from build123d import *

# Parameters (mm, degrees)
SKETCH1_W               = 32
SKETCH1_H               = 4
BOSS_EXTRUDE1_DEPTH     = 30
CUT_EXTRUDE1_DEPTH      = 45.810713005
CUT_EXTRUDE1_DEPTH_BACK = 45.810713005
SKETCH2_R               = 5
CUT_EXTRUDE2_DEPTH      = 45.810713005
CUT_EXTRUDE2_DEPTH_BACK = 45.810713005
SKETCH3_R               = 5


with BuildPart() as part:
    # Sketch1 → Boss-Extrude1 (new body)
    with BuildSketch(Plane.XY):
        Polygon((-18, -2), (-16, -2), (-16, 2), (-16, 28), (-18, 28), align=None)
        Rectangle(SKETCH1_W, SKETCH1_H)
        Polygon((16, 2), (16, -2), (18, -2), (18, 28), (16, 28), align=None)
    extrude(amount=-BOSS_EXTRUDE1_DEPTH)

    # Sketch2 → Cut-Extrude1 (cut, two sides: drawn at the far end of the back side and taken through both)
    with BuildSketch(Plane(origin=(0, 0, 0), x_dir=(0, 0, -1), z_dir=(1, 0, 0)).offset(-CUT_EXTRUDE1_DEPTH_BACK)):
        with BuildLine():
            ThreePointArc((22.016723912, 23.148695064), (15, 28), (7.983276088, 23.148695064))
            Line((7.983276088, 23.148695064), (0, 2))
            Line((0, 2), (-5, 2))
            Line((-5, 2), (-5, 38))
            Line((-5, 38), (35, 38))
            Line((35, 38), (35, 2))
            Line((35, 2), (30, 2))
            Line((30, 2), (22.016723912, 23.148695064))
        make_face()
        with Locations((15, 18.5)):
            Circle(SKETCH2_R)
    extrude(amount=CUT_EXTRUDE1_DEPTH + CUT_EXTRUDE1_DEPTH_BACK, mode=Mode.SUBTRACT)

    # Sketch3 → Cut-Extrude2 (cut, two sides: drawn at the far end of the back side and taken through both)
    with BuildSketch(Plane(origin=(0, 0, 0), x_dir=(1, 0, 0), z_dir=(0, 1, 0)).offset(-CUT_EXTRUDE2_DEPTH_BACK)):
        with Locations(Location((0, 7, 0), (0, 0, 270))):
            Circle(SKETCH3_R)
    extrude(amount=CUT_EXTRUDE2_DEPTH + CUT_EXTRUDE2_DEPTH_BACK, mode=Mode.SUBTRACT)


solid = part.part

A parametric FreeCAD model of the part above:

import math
import FreeCAD as App
import Part
import Sketcher

V = App.Vector
Q = App.Units.Quantity


def add_polygon(sketch, points):
    """Adds a closed chain of lines whose ends are joined by coincident constraints."""
    first, n = sketch.GeometryCount, len(points)
    for a, b in zip(points, points[1:] + points[:1]):
        sketch.addGeometry(Part.LineSegment(App.Vector(*a, 0), App.Vector(*b, 0)), False)
    for i in range(n):
        sketch.addConstraint(Sketcher.Constraint("Coincident", first + i, 2, first + (i + 1) % n, 1))

doc = App.newDocument("Part")
body = doc.addObject("PartDesign::Body", "Body")

sketch1 = doc.addObject("Sketcher::SketchObject", "Sketch")
body.addObject(sketch1)
sketch1.AttachmentSupport = (doc.XY_Plane, [""])
sketch1.MapMode = "FlatFace"
add_polygon(sketch1, [(-18, -2), (18, -2), (18, 28), (16, 28), (16, 2), (-16, 2), (-16, 28), (-18, 28)])
sketch1.addConstraint([
    Sketcher.Constraint("Horizontal", 0),
    Sketcher.Constraint("Vertical", 1),
    Sketcher.Constraint("Horizontal", 2),
    Sketcher.Constraint("Vertical", 3),
    Sketcher.Constraint("Horizontal", 4),
    Sketcher.Constraint("Vertical", 5),
    Sketcher.Constraint("Horizontal", 6),
    Sketcher.Constraint("Vertical", 7),
    Sketcher.Constraint("Symmetric", 2, 2, 5, 2, -2),
    Sketcher.Constraint("Equal", 2, 6),
    Sketcher.Constraint("DistanceX", 0, 1, 0, 2, Q("36 mm")),
    Sketcher.Constraint("DistanceX", 2, 2, 2, 1, Q("2 mm")),
    Sketcher.Constraint("DistanceY", 1, 1, 1, 2, Q("30 mm")),
    Sketcher.Constraint("DistanceY", 3, 2, 3, 1, Q("26 mm")),
    Sketcher.Constraint("DistanceY", 0, 2, -1, 1, Q("2 mm")),
])
pad1 = doc.addObject("PartDesign::Pad", "Pad")
body.addObject(pad1)
pad1.Profile = sketch1
pad1.Length = 30
pad1.Reversed = True

sketch2 = doc.addObject("Sketcher::SketchObject", "Sketch001")
body.addObject(sketch2)
sketch2.AttachmentSupport = (doc.YZ_Plane, [""])
sketch2.MapMode = "FlatFace"
sketch2.addGeometry([
    Part.ArcOfCircle(Part.Circle(V(20, -15, 0), V(0, 0, 1), 8), math.radians(-69), math.radians(69)),
    Part.LineSegment(V(23, -22, 0), V(2, -30, 0)),
    Part.LineSegment(V(2, -30, 0), V(2, -35, 0)),
    Part.LineSegment(V(2, -35, 0), V(38, -35, 0)),
    Part.LineSegment(V(38, -35, 0), V(38, 5, 0)),
    Part.LineSegment(V(38, 5, 0), V(2, 5, 0)),
    Part.LineSegment(V(2, 5, 0), V(2, 0, 0)),
    Part.LineSegment(V(2, 0, 0), V(23, -8, 0)),
    Part.Circle(V(18, -15, 0), V(0, 0, 1), 5),
], False)
sketch2.addConstraint([
    Sketcher.Constraint("Tangent", 0, 1, 1, 1),
    Sketcher.Constraint("Coincident", 1, 2, 2, 1),
    Sketcher.Constraint("Coincident", 2, 2, 3, 1),
    Sketcher.Constraint("Coincident", 3, 2, 4, 1),
    Sketcher.Constraint("Coincident", 4, 2, 5, 1),
    Sketcher.Constraint("Coincident", 5, 2, 6, 1),
    Sketcher.Constraint("Coincident", 6, 2, 7, 1),
    Sketcher.Constraint("Tangent", 7, 2, 0, 2),
    Sketcher.Constraint("Vertical", 2),
    Sketcher.Constraint("Horizontal", 3),
    Sketcher.Constraint("Vertical", 4),
    Sketcher.Constraint("Horizontal", 5),
    Sketcher.Constraint("Vertical", 6),
    Sketcher.Constraint("PointOnObject", 6, 2, -1),
    Sketcher.Constraint("Horizontal", 0, 3, 8, 3),
    Sketcher.Constraint("Vertical", 2, 2, 5, 2),
    Sketcher.Constraint("Vertical", 0, 1, 7, 2),
    Sketcher.Constraint("Equal", 2, 6),
    Sketcher.Constraint("Diameter", 8, Q("10 mm")),
    Sketcher.Constraint("Radius", 0, Q("7.5 mm")),
    Sketcher.Constraint("DistanceX", 3, 1, 3, 2, Q("36 mm")),
    Sketcher.Constraint("DistanceY", 2, 2, 2, 1, Q("5 mm")),
    Sketcher.Constraint("DistanceY", 4, 1, 4, 2, Q("40 mm")),
    Sketcher.Constraint("DistanceX", -1, 1, 1, 2, Q("2 mm")),
    Sketcher.Constraint("DistanceX", 8, 3, 0, 3, Q("2 mm")),
    Sketcher.Constraint("DistanceX", -1, 1, 0, 3, Q("20.5 mm")),
])
pocket1 = doc.addObject("PartDesign::Pocket", "Pocket")
body.addObject(pocket1)
pocket1.Profile = sketch2
pocket1.Type = "ThroughAll"
pocket1.Midplane = True

sketch3 = doc.addObject("Sketcher::SketchObject", "Sketch002")
body.addObject(sketch3)
sketch3.AttachmentSupport = (doc.XZ_Plane, [""])
sketch3.MapMode = "FlatFace"
sketch3.addGeometry(Part.Circle(V(0, -7, 0), V(0, 0, 1), 5), False)
sketch3.addConstraint([
    Sketcher.Constraint("PointOnObject", 0, 3, -2),
    Sketcher.Constraint("Diameter", 0, Q("10 mm")),
    Sketcher.Constraint("DistanceY", 0, 3, -1, 1, Q("7 mm")),
])
pocket2 = doc.addObject("PartDesign::Pocket", "Pocket001")
body.addObject(pocket2)
pocket2.Profile = sketch3
pocket2.Type = "ThroughAll"
pocket2.Midplane = True

doc.recompute()
